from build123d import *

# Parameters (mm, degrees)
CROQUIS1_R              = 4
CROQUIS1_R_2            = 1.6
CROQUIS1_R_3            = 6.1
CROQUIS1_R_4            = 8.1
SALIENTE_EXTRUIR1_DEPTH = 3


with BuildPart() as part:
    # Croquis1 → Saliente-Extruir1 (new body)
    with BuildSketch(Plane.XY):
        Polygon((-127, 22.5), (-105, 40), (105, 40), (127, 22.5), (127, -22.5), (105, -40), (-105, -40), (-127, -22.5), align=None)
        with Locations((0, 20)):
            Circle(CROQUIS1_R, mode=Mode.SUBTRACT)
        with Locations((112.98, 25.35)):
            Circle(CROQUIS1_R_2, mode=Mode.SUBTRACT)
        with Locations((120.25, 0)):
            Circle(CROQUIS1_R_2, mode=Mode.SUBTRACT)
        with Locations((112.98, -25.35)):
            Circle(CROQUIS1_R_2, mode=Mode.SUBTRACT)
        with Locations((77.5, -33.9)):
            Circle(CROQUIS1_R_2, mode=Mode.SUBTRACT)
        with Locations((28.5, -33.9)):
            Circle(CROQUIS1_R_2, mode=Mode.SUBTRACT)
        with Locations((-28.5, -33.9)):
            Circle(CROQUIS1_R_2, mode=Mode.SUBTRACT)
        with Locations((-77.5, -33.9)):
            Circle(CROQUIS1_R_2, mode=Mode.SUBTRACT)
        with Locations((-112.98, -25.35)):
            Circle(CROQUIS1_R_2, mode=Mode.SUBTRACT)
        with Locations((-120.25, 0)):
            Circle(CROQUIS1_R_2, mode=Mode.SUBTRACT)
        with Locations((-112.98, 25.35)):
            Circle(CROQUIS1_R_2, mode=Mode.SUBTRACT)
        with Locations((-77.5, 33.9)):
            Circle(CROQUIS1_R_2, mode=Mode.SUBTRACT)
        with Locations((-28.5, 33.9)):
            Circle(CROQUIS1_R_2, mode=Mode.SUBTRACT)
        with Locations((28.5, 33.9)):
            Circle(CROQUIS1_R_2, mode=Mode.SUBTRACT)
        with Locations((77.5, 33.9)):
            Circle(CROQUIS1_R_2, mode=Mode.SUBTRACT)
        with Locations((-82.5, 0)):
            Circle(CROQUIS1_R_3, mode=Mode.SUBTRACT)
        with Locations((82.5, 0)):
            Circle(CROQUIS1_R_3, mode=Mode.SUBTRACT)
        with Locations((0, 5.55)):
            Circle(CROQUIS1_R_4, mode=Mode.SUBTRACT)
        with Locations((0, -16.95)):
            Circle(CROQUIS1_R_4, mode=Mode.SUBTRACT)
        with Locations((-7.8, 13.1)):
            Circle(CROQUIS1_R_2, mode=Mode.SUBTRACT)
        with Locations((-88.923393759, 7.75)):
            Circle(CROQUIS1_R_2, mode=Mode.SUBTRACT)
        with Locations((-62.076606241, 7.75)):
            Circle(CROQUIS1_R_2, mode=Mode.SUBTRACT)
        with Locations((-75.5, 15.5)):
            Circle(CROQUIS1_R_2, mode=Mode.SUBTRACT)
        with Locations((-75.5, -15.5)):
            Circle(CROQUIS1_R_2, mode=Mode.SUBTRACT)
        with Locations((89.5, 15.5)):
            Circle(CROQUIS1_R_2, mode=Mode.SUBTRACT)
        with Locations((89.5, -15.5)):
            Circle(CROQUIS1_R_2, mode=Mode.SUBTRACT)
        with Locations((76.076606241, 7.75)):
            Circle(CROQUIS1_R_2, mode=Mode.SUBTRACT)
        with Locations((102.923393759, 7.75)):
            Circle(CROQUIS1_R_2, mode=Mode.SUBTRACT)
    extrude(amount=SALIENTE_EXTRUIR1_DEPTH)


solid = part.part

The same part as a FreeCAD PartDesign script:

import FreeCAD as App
import Part
import Sketcher
Q = App.Units.Quantity


def add_polygon(sketch, points):
    """Adds a closed chain of lines whose ends are joined by coincident constraints."""
    first, n = sketch.GeometryCount, len(points)
    for a, b in zip(points, points[1:] + points[:1]):
        sketch.addGeometry(Part.LineSegment(App.Vector(*a, 0), App.Vector(*b, 0)), False)
    for i in range(n):
        sketch.addConstraint(Sketcher.Constraint("Coincident", first + i, 2, first + (i + 1) % n, 1))

doc = App.newDocument("Part")
body = doc.addObject("PartDesign::Body", "Body")

sketch1 = body.newObject("Sketcher::SketchObject", "Sketch")
sketch1.AttachmentSupport = (doc.getObject("XY_Plane"), [""])
sketch1.MapMode = "FlatFace"
add_polygon(sketch1, [(-105, 40), (-127, 22.5), (-127, -22.5), (-105, -40), (105, -40), (127, -22.5), (127, 22.5), (105, 40)])
sketch1.addGeometry(Part.Circle(App.Vector(77.5, -33.9, 0), App.Vector(0, 0, 1), 1.6), False)
sketch1.addGeometry(Part.Circle(App.Vector(112.98, -25.35, 0), App.Vector(0, 0, 1), 1.6), False)
sketch1.addGeometry(Part.Circle(App.Vector(28.5, -33.9, 0), App.Vector(0, 0, 1), 1.6), False)
sketch1.addGeometry(Part.Circle(App.Vector(89.5, -15.5, 0), App.Vector(0, 0, 1), 1.6), False)
sketch1.addGeometry(Part.Circle(App.Vector(0, -16.95, 0), App.Vector(0, 0, 1), 8.1), False)
sketch1.addGeometry(Part.Circle(App.Vector(-28.5, -33.9, 0), App.Vector(0, 0, 1), 1.6), False)
sketch1.addGeometry(Part.Circle(App.Vector(-77.5, -33.9, 0), App.Vector(0, 0, 1), 1.6), False)
sketch1.addGeometry(Part.Circle(App.Vector(-112.98, -25.35, 0), App.Vector(0, 0, 1), 1.6), False)
sketch1.addGeometry(Part.Circle(App.Vector(-75.5, -15.5, 0), App.Vector(0, 0, 1), 1.6), False)
sketch1.addGeometry(Part.Circle(App.Vector(120.25, 0, 0), App.Vector(0, 0, 1), 1.6), False)
sketch1.addGeometry(Part.Circle(App.Vector(102.923394, 7.75, 0), App.Vector(0, 0, 1), 1.6), False)
sketch1.addGeometry(Part.Circle(App.Vector(82.5, 0, 0), App.Vector(0, 0, 1), 6.1), False)
sketch1.addGeometry(Part.Circle(App.Vector(76.076606, 7.75, 0), App.Vector(0, 0, 1), 1.6), False)
sketch1.addGeometry(Part.Circle(App.Vector(89.5, 15.5, 0), App.Vector(0, 0, 1), 1.6), False)
sketch1.addGeometry(Part.Circle(App.Vector(0, 5.55, 0), App.Vector(0, 0, 1), 8.1), False)
sketch1.addGeometry(Part.Circle(App.Vector(112.98, 25.35, 0), App.Vector(0, 0, 1), 1.6), False)
sketch1.addGeometry(Part.Circle(App.Vector(77.5, 33.9, 0), App.Vector(0, 0, 1), 1.6), False)
sketch1.addGeometry(Part.Circle(App.Vector(0, 20, 0), App.Vector(0, 0, 1), 4), False)
sketch1.addGeometry(Part.Circle(App.Vector(28.5, 33.9, 0), App.Vector(0, 0, 1), 1.6), False)
sketch1.addGeometry(Part.Circle(App.Vector(-7.8, 13.1, 0), App.Vector(0, 0, 1), 1.6), False)
sketch1.addGeometry(Part.Circle(App.Vector(-82.5, 0, 0), App.Vector(0, 0, 1), 6.1), False)
sketch1.addGeometry(Part.Circle(App.Vector(-62.076606, 7.75, 0), App.Vector(0, 0, 1), 1.6), False)
sketch1.addGeometry(Part.Circle(App.Vector(-88.923394, 7.75, 0), App.Vector(0, 0, 1), 1.6), False)
sketch1.addGeometry(Part.Circle(App.Vector(-120.25, 0, 0), App.Vector(0, 0, 1), 1.6), False)
sketch1.addGeometry(Part.Circle(App.Vector(-75.5, 15.5, 0), App.Vector(0, 0, 1), 1.6), False)
sketch1.addGeometry(Part.Circle(App.Vector(-28.5, 33.9, 0), App.Vector(0, 0, 1), 1.6), False)
sketch1.addGeometry(Part.Circle(App.Vector(-112.98, 25.35, 0), App.Vector(0, 0, 1), 1.6), False)
sketch1.addGeometry(Part.Circle(App.Vector(-77.5, 33.9, 0), App.Vector(0, 0, 1), 1.6), False)
sketch1.addConstraint([
    Sketcher.Constraint("Vertical", 1),
    Sketcher.Constraint("Horizontal", 3),
    Sketcher.Constraint("Vertical", 5),
    Sketcher.Constraint("Horizontal", 7),
    Sketcher.Constraint("Equal", 8, 9),
    Sketcher.Constraint("Equal", 9, 10),
    Sketcher.Constraint("Equal", 10, 11),
    Sketcher.Constraint("Equal", 11, 13),
    Sketcher.Constraint("Equal", 13, 14),
    Sketcher.Constraint("Equal", 14, 15),
    Sketcher.Constraint("Equal", 15, 16),
    Sketcher.Constraint("Equal", 16, 17),
    Sketcher.Constraint("Equal", 17, 18),
    Sketcher.Constraint("Equal", 18, 20),
    Sketcher.Constraint("Equal", 20, 21),
    Sketcher.Constraint("Equal", 12, 22),
    Sketcher.Constraint("Equal", 21, 23),
    Sketcher.Constraint("Equal", 23, 24),
    Sketcher.Constraint("Equal", 24, 26),
    Sketcher.Constraint("Equal", 26, 27),
    Sketcher.Constraint("Equal", 19, 28),
    Sketcher.Constraint("Equal", 27, 29),
    Sketcher.Constraint("Equal", 29, 30),
    Sketcher.Constraint("Equal", 30, 31),
    Sketcher.Constraint("Equal", 31, 32),
    Sketcher.Constraint("Equal", 32, 33),
    Sketcher.Constraint("Equal", 33, 34),
    Sketcher.Constraint("Equal", 34, 35),
    Sketcher.Constraint("Symmetric", 15, 3, 23, 3, -1, 1),
    Sketcher.Constraint("Symmetric", 14, 3, 24, 3, -1, 1),
    Sketcher.Constraint("Symmetric", 13, 3, 26, 3, -1, 1),
    Sketcher.Constraint("Symmetric", 19, 3, 28, 3, -1, 1),
    Sketcher.Constraint("Symmetric", 17, 3, 31, 3, -1, 1),
    Sketcher.Constraint("Symmetric", 10, 3, 33, 3, -1, 1),
    Sketcher.Constraint("Symmetric", 9, 3, 34, 3, -1, 1),
    Sketcher.Constraint("Symmetric", 8, 3, 35, 3, -1, 1),
    Sketcher.Constraint("Symmetric", 0, 2, 4, 2, -1, 1),
    Sketcher.Constraint("Symmetric", 2, 2, 6, 2, -1, 1),
    Sketcher.Constraint("Symmetric", 10, 3, 13, 3, -2),
    Sketcher.Constraint("Symmetric", 8, 3, 14, 3, -2),
    Sketcher.Constraint("Symmetric", 9, 3, 15, 3, -2),
    Sketcher.Constraint("Symmetric", 11, 3, 21, 3, -1),
    Sketcher.Constraint("Symmetric", 16, 3, 32, 3, -1),
    Sketcher.Constraint("PointOnObject", 12, 3, -2),
    Sketcher.Constraint("PointOnObject", 17, 3, -1),
    Sketcher.Constraint("PointOnObject", 19, 3, -1),
    Sketcher.Constraint("PointOnObject", 22, 3, -2),
    Sketcher.Constraint("PointOnObject", 25, 3, -2),
    Sketcher.Constraint("Parallel", 0, 4),
    Sketcher.Constraint("Parallel", 2, 6),
    Sketcher.Constraint("Horizontal", 8, 3, 10, 3),
    Sketcher.Constraint("Horizontal", 11, 3, 16, 3),
    Sketcher.Constraint("Horizontal", 18, 3, 20, 3),
    Sketcher.Constraint("Horizontal", 20, 3, 29, 3),
    Sketcher.Constraint("Horizontal", 29, 3, 30, 3),
    Sketcher.Constraint("Horizontal", 1, 2, 4, 2),
    Sketcher.Constraint("Vertical", 3, 2, 6, 2),
    Sketcher.Constraint("Diameter", 25, Q("8 mm")),
    Sketcher.Constraint("Diameter", 8, Q("3.2 mm")),
    Sketcher.Constraint("Diameter", 12, Q("16.2 mm")),
    Sketcher.Constraint("Diameter", 19, Q("12.2 mm")),
    Sketcher.Constraint("DistanceX", 3, 1, 3, 2, Q("210 mm")),
    Sketcher.Constraint("DistanceY", 1, 2, 1, 1, Q("45 mm")),
    Sketcher.Constraint("DistanceY", -1, 1, 25, 3, Q("20 mm")),
    Sketcher.Constraint("DistanceX", 0, 2, -1, 1, Q("127 mm")),
    Sketcher.Constraint("DistanceY", 2, 2, -1, 1, Q("40 mm")),
    Sketcher.Constraint("DistanceX", 10, 3, 8, 3, Q("49 mm")),
    Sketcher.Constraint("DistanceX", 8, 3, 11, 3, Q("12 mm")),
    Sketcher.Constraint("DistanceX", 13, 3, 10, 3, Q("57 mm")),
    Sketcher.Constraint("DistanceX", 14, 3, 16, 3, Q("2 mm")),
    Sketcher.Constraint("DistanceX", 19, 3, 11, 3, Q("7 mm")),
    Sketcher.Constraint("DistanceY", 11, 3, 21, 3, Q("31 mm")),
    Sketcher.Constraint("DistanceY", 13, 3, 27, 3, Q("47 mm")),
    Sketcher.Constraint("DistanceY", 8, 3, -1, 1, Q("33.9 mm")),
    Sketcher.Constraint("DistanceX", 27, 3, -1, 1, Q("7.8 mm")),
    Sketcher.Constraint("DistanceY", 9, 3, 12, 3, Q("8.4 mm")),
    Sketcher.Constraint("DistanceY", 9, 3, 18, 3, Q("33.1 mm")),
    Sketcher.Constraint("DistanceY", 12, 3, 22, 3, Q("22.5 mm")),
    Sketcher.Constraint("DistanceY", 18, 3, 23, 3, Q("17.6 mm")),
    Sketcher.Constraint("DistanceX", -1, 1, 9, 3, Q("112.98 mm")),
    Sketcher.Constraint("DistanceX", -1, 1, 17, 3, Q("120.25 mm")),
    Sketcher.Constraint("DistanceX", -1, 1, 18, 3, Q("102.923394 mm")),
    Sketcher.Constraint("DistanceX", -1, 1, 20, 3, Q("76.076606 mm")),
    Sketcher.Constraint("DistanceX", 29, 3, -1, 1, Q("62.076606 mm")),
    Sketcher.Constraint("DistanceX", 30, 3, -1, 1, Q("88.923394 mm")),
])
pad1 = body.newObject("PartDesign::Pad", "Pad")
pad1.Profile = sketch1
pad1.Length = 3

doc.recompute()
